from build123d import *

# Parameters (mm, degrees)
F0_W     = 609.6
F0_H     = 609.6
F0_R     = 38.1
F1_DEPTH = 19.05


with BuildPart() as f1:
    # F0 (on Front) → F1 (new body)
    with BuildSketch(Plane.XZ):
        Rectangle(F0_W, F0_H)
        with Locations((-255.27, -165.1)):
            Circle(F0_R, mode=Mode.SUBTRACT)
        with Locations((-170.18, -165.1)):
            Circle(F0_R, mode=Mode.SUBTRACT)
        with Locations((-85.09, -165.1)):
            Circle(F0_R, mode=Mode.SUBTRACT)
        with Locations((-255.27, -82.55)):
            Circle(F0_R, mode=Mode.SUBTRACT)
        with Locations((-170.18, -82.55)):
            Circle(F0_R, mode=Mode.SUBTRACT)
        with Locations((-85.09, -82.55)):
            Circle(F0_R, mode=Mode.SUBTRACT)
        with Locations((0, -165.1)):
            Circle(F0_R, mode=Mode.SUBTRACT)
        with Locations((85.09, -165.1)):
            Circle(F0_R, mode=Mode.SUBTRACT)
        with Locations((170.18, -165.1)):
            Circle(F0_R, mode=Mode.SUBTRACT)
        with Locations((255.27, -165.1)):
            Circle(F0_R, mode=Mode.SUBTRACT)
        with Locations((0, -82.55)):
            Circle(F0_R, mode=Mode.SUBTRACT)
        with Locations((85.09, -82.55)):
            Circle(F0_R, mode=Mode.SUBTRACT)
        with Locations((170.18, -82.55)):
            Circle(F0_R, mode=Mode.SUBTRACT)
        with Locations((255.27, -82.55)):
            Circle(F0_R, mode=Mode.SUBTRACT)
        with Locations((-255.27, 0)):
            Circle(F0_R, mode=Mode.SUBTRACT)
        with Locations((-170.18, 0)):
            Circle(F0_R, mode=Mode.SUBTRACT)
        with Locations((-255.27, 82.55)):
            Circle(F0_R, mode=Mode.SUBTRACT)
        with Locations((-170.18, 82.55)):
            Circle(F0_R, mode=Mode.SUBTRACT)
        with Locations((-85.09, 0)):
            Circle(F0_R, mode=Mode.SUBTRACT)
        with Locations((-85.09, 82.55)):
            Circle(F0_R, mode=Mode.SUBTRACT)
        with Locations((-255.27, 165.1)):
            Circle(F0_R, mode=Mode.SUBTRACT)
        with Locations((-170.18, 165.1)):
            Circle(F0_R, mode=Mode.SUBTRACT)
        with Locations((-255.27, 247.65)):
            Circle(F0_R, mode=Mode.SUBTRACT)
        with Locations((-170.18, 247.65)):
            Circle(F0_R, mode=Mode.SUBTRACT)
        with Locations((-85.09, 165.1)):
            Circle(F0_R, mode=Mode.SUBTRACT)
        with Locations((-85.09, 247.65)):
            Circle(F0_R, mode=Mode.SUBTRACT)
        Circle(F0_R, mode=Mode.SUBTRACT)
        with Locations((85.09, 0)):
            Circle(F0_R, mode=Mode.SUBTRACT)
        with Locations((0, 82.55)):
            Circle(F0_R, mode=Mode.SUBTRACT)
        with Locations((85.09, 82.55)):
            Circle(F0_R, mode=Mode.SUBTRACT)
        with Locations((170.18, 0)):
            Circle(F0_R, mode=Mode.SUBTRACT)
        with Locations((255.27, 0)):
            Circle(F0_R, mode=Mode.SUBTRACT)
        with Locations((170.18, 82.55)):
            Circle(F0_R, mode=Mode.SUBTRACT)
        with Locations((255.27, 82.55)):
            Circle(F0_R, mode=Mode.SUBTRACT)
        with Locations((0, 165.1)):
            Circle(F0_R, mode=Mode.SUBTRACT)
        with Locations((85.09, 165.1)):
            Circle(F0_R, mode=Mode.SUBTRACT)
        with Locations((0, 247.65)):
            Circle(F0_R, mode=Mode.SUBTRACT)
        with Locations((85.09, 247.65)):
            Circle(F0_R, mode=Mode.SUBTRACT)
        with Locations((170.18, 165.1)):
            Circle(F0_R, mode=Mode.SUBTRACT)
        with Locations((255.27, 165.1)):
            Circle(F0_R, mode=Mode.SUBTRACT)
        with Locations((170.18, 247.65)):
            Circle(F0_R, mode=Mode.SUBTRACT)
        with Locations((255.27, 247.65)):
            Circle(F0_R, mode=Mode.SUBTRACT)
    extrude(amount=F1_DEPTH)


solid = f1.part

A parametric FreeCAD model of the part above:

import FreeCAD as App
import Part
import Sketcher

V = App.Vector
Q = App.Units.Quantity

doc = App.newDocument("Part")
body = doc.addObject("PartDesign::Body", "Body")

# Sketch on XZ plane
sketch1 = doc.addObject("Sketcher::SketchObject", "Sketch")
body.addObject(sketch1)
sketch1.AttachmentSupport = (doc.XZ_Plane, [""])
sketch1.MapMode = "FlatFace"
sketch1.addGeometry([
    Part.LineSegment(V(-305, 305, 0), V(-305, -305, 0)),  # 0
    Part.LineSegment(V(-305, -305, 0), V(305, -305, 0)),  # 1
    Part.LineSegment(V(305, -305, 0), V(305, 305, 0)),  # 2
    Part.LineSegment(V(305, 305, 0), V(-305, 305, 0)),  # 3
    Part.Circle(V(-255, -165, 0), V(0, 0, 1), 38),  # 4
    Part.Circle(V(-170, -165, 0), V(0, 0, 1), 38),  # 5
    Part.Circle(V(-255, -83, 0), V(0, 0, 1), 38),  # 6
    Part.Circle(V(-170, -83, 0), V(0, 0, 1), 38),  # 7
    Part.Circle(V(-85, -165, 0), V(0, 0, 1), 38),  # 8
    Part.Circle(V(-85, -83, 0), V(0, 0, 1), 38),  # 9
    Part.Circle(V(-255, 0, 0), V(0, 0, 1), 38),  # 10
    Part.Circle(V(-170, 0, 0), V(0, 0, 1), 38),  # 11
    Part.Circle(V(-85, 0, 0), V(0, 0, 1), 38),  # 12
    Part.Circle(V(0, -165, 0), V(0, 0, 1), 38),  # 13
    Part.Circle(V(85, -165, 0), V(0, 0, 1), 38),  # 14
    Part.Circle(V(0, -83, 0), V(0, 0, 1), 38),  # 15
    Part.Circle(V(85, -83, 0), V(0, 0, 1), 38),  # 16
    Part.Circle(V(170, -165, 0), V(0, 0, 1), 38),  # 17
    Part.Circle(V(255, -165, 0), V(0, 0, 1), 38),  # 18
    Part.Circle(V(170, -83, 0), V(0, 0, 1), 38),  # 19
    Part.Circle(V(255, -83, 0), V(0, 0, 1), 38),  # 20
    Part.Circle(V(0, 0, 0), V(0, 0, 1), 38),  # 21
    Part.Circle(V(85, 0, 0), V(0, 0, 1), 38),  # 22
    Part.Circle(V(170, 0, 0), V(0, 0, 1), 38),  # 23
    Part.Circle(V(255, 0, 0), V(0, 0, 1), 38),  # 24
    Part.Circle(V(-255, 83, 0), V(0, 0, 1), 38),  # 25
    Part.Circle(V(-170, 83, 0), V(0, 0, 1), 38),  # 26
    Part.Circle(V(-85, 83, 0), V(0, 0, 1), 38),  # 27
    Part.Circle(V(-255, 165, 0), V(0, 0, 1), 38),  # 28
    Part.Circle(V(-170, 165, 0), V(0, 0, 1), 38),  # 29
    Part.Circle(V(-255, 248, 0), V(0, 0, 1), 38),  # 30
    Part.Circle(V(-170, 248, 0), V(0, 0, 1), 38),  # 31
    Part.Circle(V(-85, 165, 0), V(0, 0, 1), 38),  # 32
    Part.Circle(V(-85, 248, 0), V(0, 0, 1), 38),  # 33
    Part.Circle(V(0, 83, 0), V(0, 0, 1), 38),  # 34
    Part.Circle(V(85, 83, 0), V(0, 0, 1), 38),  # 35
    Part.Circle(V(170, 83, 0), V(0, 0, 1), 38),  # 36
    Part.Circle(V(255, 83, 0), V(0, 0, 1), 38),  # 37
    Part.Circle(V(0, 165, 0), V(0, 0, 1), 38),  # 38
    Part.Circle(V(85, 165, 0), V(0, 0, 1), 38),  # 39
    Part.Circle(V(0, 248, 0), V(0, 0, 1), 38),  # 40
    Part.Circle(V(85, 248, 0), V(0, 0, 1), 38),  # 41
    Part.Circle(V(170, 165, 0), V(0, 0, 1), 38),  # 42
    Part.Circle(V(255, 165, 0), V(0, 0, 1), 38),  # 43
    Part.Circle(V(170, 248, 0), V(0, 0, 1), 38),  # 44
    Part.Circle(V(255, 248, 0), V(0, 0, 1), 38),  # 45
], False)
sketch1.addConstraint([
    Sketcher.Constraint("Coincident", 0, 2, 1, 1),
    Sketcher.Constraint("Coincident", 1, 2, 2, 1),
    Sketcher.Constraint("Coincident", 2, 2, 3, 1),
    Sketcher.Constraint("Coincident", 3, 2, 0, 1),
    Sketcher.Constraint("Vertical", 0),
    Sketcher.Constraint("Horizontal", 1),
    Sketcher.Constraint("Vertical", 2),
    Sketcher.Constraint("Horizontal", 3),
    Sketcher.Constraint("Coincident", 21, 3, -1, 1),
    Sketcher.Constraint("Equal", 4, 5),
    Sketcher.Constraint("Equal", 5, 6),
    Sketcher.Constraint("Equal", 6, 7),
    Sketcher.Constraint("Equal", 7, 8),
    Sketcher.Constraint("Equal", 8, 9),
    Sketcher.Constraint("Equal", 9, 10),
    Sketcher.Constraint("Equal", 10, 11),
    Sketcher.Constraint("Equal", 11, 12),
    Sketcher.Constraint("Equal", 12, 13),
    Sketcher.Constraint("Equal", 13, 14),
    Sketcher.Constraint("Equal", 14, 15),
    Sketcher.Constraint("Equal", 15, 16),
    Sketcher.Constraint("Equal", 16, 17),
    Sketcher.Constraint("Equal", 17, 18),
    Sketcher.Constraint("Equal", 18, 19),
    Sketcher.Constraint("Equal", 19, 20),
    Sketcher.Constraint("Equal", 20, 21),
    Sketcher.Constraint("Equal", 21, 22),
    Sketcher.Constraint("Equal", 22, 23),
    Sketcher.Constraint("Equal", 23, 24),
    Sketcher.Constraint("Equal", 24, 25),
    Sketcher.Constraint("Equal", 25, 26),
    Sketcher.Constraint("Equal", 26, 27),
    Sketcher.Constraint("Equal", 27, 28),
    Sketcher.Constraint("Equal", 28, 29),
    Sketcher.Constraint("Equal", 29, 30),
    Sketcher.Constraint("Equal", 30, 31),
    Sketcher.Constraint("Equal", 31, 32),
    Sketcher.Constraint("Equal", 32, 33),
    Sketcher.Constraint("Equal", 33, 34),
    Sketcher.Constraint("Equal", 34, 35),
    Sketcher.Constraint("Equal", 35, 36),
    Sketcher.Constraint("Equal", 36, 37),
    Sketcher.Constraint("Equal", 37, 38),
    Sketcher.Constraint("Equal", 38, 39),
    Sketcher.Constraint("Equal", 39, 40),
    Sketcher.Constraint("Equal", 40, 41),
    Sketcher.Constraint("Equal", 41, 42),
    Sketcher.Constraint("Equal", 42, 43),
    Sketcher.Constraint("Equal", 43, 44),
    Sketcher.Constraint("Equal", 44, 45),
    Sketcher.Constraint("Symmetric", 12, 3, 22, 3, -1, 1),
    Sketcher.Constraint("Symmetric", 11, 3, 23, 3, -1, 1),
    Sketcher.Constraint("Symmetric", 10, 3, 24, 3, -1, 1),
    Sketcher.Constraint("Symmetric", 20, 3, 25, 3, -1, 1),
    Sketcher.Constraint("Symmetric", 19, 3, 26, 3, -1, 1),
    Sketcher.Constraint("Symmetric", 16, 3, 27, 3, -1, 1),
    Sketcher.Constraint("Symmetric", 18, 3, 28, 3, -1, 1),
    Sketcher.Constraint("Symmetric", 17, 3, 29, 3, -1, 1),
    Sketcher.Constraint("Symmetric", 14, 3, 32, 3, -1, 1),
    Sketcher.Constraint("Symmetric", 15, 3, 34, 3, -1, 1),
    Sketcher.Constraint("Symmetric", 9, 3, 35, 3, -1, 1),
    Sketcher.Constraint("Symmetric", 7, 3, 36, 3, -1, 1),
    Sketcher.Constraint("Symmetric", 6, 3, 37, 3, -1, 1),
    Sketcher.Constraint("Symmetric", 13, 3, 38, 3, -1, 1),
    Sketcher.Constraint("Symmetric", 8, 3, 39, 3, -1, 1),
    Sketcher.Constraint("Symmetric", 5, 3, 42, 3, -1, 1),
    Sketcher.Constraint("Symmetric", 4, 3, 43, 3, -1, 1),
    Sketcher.Constraint("Symmetric", 0, 2, 2, 2, -1, 1),
    Sketcher.Constraint("Symmetric", 8, 3, 14, 3, -2),
    Sketcher.Constraint("Symmetric", 9, 3, 16, 3, -2),
    Sketcher.Constraint("Symmetric", 5, 3, 17, 3, -2),
    Sketcher.Constraint("Symmetric", 4, 3, 18, 3, -2),
    Sketcher.Constraint("Symmetric", 7, 3, 19, 3, -2),
    Sketcher.Constraint("Symmetric", 6, 3, 20, 3, -2),
    Sketcher.Constraint("Symmetric", 33, 3, 41, 3, -2),
    Sketcher.Constraint("Symmetric", 31, 3, 44, 3, -2),
    Sketcher.Constraint("Symmetric", 30, 3, 45, 3, -2),
    Sketcher.Constraint("PointOnObject", 10, 3, -1),
    Sketcher.Constraint("PointOnObject", 11, 3, -1),
    Sketcher.Constraint("PointOnObject", 12, 3, -1),
    Sketcher.Constraint("PointOnObject", 13, 3, -2),
    Sketcher.Constraint("PointOnObject", 15, 3, -2),
    Sketcher.Constraint("PointOnObject", 40, 3, -2),
    Sketcher.Constraint("Horizontal", 4, 3, 5, 3),
    Sketcher.Constraint("Horizontal", 6, 3, 7, 3),
    Sketcher.Constraint("Horizontal", 5, 3, 8, 3),
    Sketcher.Constraint("Horizontal", 7, 3, 9, 3),
    Sketcher.Constraint("Horizontal", 8, 3, 13, 3),
    Sketcher.Constraint("Horizontal", 9, 3, 15, 3),
    Sketcher.Constraint("Horizontal", 30, 3, 31, 3),
    Sketcher.Constraint("Horizontal", 31, 3, 33, 3),
    Sketcher.Constraint("Horizontal", 33, 3, 40, 3),
    Sketcher.Constraint("Vertical", 4, 3, 6, 3),
    Sketcher.Constraint("Vertical", 5, 3, 7, 3),
    Sketcher.Constraint("Vertical", 8, 3, 9, 3),
    Sketcher.Constraint("Vertical", 6, 3, 10, 3),
    Sketcher.Constraint("Vertical", 7, 3, 11, 3),
    Sketcher.Constraint("Vertical", 9, 3, 12, 3),
    Sketcher.Constraint("Vertical", 28, 3, 30, 3),
    Sketcher.Constraint("Vertical", 29, 3, 31, 3),
    Sketcher.Constraint("Vertical", 32, 3, 33, 3),
    Sketcher.Constraint("Equal", 3, 0),
    Sketcher.Constraint("Diameter", 4, Q("3 in")),
    Sketcher.Constraint("DistanceX", 1, 1, 1, 2, Q("24 in")),
    Sketcher.Constraint("DistanceY", 4, 3, -1, 1, Q("6.5 in")),
    Sketcher.Constraint("DistanceX", 5, 3, -1, 1, Q("6.7 in")),
    Sketcher.Constraint("DistanceX", 4, 3, 8, 3, Q("6.7 in")),
    Sketcher.Constraint("DistanceX", 8, 3, 14, 3, Q("6.7 in")),
    Sketcher.Constraint("DistanceY", 6, 3, 25, 3, Q("6.5 in")),
    Sketcher.Constraint("DistanceY", 25, 3, 30, 3, Q("6.5 in")),
])
pad1 = doc.addObject("PartDesign::Pad", "Pad")
body.addObject(pad1)
pad1.Profile = sketch1
pad1.Length = Q("0.75 in")

doc.recompute()
